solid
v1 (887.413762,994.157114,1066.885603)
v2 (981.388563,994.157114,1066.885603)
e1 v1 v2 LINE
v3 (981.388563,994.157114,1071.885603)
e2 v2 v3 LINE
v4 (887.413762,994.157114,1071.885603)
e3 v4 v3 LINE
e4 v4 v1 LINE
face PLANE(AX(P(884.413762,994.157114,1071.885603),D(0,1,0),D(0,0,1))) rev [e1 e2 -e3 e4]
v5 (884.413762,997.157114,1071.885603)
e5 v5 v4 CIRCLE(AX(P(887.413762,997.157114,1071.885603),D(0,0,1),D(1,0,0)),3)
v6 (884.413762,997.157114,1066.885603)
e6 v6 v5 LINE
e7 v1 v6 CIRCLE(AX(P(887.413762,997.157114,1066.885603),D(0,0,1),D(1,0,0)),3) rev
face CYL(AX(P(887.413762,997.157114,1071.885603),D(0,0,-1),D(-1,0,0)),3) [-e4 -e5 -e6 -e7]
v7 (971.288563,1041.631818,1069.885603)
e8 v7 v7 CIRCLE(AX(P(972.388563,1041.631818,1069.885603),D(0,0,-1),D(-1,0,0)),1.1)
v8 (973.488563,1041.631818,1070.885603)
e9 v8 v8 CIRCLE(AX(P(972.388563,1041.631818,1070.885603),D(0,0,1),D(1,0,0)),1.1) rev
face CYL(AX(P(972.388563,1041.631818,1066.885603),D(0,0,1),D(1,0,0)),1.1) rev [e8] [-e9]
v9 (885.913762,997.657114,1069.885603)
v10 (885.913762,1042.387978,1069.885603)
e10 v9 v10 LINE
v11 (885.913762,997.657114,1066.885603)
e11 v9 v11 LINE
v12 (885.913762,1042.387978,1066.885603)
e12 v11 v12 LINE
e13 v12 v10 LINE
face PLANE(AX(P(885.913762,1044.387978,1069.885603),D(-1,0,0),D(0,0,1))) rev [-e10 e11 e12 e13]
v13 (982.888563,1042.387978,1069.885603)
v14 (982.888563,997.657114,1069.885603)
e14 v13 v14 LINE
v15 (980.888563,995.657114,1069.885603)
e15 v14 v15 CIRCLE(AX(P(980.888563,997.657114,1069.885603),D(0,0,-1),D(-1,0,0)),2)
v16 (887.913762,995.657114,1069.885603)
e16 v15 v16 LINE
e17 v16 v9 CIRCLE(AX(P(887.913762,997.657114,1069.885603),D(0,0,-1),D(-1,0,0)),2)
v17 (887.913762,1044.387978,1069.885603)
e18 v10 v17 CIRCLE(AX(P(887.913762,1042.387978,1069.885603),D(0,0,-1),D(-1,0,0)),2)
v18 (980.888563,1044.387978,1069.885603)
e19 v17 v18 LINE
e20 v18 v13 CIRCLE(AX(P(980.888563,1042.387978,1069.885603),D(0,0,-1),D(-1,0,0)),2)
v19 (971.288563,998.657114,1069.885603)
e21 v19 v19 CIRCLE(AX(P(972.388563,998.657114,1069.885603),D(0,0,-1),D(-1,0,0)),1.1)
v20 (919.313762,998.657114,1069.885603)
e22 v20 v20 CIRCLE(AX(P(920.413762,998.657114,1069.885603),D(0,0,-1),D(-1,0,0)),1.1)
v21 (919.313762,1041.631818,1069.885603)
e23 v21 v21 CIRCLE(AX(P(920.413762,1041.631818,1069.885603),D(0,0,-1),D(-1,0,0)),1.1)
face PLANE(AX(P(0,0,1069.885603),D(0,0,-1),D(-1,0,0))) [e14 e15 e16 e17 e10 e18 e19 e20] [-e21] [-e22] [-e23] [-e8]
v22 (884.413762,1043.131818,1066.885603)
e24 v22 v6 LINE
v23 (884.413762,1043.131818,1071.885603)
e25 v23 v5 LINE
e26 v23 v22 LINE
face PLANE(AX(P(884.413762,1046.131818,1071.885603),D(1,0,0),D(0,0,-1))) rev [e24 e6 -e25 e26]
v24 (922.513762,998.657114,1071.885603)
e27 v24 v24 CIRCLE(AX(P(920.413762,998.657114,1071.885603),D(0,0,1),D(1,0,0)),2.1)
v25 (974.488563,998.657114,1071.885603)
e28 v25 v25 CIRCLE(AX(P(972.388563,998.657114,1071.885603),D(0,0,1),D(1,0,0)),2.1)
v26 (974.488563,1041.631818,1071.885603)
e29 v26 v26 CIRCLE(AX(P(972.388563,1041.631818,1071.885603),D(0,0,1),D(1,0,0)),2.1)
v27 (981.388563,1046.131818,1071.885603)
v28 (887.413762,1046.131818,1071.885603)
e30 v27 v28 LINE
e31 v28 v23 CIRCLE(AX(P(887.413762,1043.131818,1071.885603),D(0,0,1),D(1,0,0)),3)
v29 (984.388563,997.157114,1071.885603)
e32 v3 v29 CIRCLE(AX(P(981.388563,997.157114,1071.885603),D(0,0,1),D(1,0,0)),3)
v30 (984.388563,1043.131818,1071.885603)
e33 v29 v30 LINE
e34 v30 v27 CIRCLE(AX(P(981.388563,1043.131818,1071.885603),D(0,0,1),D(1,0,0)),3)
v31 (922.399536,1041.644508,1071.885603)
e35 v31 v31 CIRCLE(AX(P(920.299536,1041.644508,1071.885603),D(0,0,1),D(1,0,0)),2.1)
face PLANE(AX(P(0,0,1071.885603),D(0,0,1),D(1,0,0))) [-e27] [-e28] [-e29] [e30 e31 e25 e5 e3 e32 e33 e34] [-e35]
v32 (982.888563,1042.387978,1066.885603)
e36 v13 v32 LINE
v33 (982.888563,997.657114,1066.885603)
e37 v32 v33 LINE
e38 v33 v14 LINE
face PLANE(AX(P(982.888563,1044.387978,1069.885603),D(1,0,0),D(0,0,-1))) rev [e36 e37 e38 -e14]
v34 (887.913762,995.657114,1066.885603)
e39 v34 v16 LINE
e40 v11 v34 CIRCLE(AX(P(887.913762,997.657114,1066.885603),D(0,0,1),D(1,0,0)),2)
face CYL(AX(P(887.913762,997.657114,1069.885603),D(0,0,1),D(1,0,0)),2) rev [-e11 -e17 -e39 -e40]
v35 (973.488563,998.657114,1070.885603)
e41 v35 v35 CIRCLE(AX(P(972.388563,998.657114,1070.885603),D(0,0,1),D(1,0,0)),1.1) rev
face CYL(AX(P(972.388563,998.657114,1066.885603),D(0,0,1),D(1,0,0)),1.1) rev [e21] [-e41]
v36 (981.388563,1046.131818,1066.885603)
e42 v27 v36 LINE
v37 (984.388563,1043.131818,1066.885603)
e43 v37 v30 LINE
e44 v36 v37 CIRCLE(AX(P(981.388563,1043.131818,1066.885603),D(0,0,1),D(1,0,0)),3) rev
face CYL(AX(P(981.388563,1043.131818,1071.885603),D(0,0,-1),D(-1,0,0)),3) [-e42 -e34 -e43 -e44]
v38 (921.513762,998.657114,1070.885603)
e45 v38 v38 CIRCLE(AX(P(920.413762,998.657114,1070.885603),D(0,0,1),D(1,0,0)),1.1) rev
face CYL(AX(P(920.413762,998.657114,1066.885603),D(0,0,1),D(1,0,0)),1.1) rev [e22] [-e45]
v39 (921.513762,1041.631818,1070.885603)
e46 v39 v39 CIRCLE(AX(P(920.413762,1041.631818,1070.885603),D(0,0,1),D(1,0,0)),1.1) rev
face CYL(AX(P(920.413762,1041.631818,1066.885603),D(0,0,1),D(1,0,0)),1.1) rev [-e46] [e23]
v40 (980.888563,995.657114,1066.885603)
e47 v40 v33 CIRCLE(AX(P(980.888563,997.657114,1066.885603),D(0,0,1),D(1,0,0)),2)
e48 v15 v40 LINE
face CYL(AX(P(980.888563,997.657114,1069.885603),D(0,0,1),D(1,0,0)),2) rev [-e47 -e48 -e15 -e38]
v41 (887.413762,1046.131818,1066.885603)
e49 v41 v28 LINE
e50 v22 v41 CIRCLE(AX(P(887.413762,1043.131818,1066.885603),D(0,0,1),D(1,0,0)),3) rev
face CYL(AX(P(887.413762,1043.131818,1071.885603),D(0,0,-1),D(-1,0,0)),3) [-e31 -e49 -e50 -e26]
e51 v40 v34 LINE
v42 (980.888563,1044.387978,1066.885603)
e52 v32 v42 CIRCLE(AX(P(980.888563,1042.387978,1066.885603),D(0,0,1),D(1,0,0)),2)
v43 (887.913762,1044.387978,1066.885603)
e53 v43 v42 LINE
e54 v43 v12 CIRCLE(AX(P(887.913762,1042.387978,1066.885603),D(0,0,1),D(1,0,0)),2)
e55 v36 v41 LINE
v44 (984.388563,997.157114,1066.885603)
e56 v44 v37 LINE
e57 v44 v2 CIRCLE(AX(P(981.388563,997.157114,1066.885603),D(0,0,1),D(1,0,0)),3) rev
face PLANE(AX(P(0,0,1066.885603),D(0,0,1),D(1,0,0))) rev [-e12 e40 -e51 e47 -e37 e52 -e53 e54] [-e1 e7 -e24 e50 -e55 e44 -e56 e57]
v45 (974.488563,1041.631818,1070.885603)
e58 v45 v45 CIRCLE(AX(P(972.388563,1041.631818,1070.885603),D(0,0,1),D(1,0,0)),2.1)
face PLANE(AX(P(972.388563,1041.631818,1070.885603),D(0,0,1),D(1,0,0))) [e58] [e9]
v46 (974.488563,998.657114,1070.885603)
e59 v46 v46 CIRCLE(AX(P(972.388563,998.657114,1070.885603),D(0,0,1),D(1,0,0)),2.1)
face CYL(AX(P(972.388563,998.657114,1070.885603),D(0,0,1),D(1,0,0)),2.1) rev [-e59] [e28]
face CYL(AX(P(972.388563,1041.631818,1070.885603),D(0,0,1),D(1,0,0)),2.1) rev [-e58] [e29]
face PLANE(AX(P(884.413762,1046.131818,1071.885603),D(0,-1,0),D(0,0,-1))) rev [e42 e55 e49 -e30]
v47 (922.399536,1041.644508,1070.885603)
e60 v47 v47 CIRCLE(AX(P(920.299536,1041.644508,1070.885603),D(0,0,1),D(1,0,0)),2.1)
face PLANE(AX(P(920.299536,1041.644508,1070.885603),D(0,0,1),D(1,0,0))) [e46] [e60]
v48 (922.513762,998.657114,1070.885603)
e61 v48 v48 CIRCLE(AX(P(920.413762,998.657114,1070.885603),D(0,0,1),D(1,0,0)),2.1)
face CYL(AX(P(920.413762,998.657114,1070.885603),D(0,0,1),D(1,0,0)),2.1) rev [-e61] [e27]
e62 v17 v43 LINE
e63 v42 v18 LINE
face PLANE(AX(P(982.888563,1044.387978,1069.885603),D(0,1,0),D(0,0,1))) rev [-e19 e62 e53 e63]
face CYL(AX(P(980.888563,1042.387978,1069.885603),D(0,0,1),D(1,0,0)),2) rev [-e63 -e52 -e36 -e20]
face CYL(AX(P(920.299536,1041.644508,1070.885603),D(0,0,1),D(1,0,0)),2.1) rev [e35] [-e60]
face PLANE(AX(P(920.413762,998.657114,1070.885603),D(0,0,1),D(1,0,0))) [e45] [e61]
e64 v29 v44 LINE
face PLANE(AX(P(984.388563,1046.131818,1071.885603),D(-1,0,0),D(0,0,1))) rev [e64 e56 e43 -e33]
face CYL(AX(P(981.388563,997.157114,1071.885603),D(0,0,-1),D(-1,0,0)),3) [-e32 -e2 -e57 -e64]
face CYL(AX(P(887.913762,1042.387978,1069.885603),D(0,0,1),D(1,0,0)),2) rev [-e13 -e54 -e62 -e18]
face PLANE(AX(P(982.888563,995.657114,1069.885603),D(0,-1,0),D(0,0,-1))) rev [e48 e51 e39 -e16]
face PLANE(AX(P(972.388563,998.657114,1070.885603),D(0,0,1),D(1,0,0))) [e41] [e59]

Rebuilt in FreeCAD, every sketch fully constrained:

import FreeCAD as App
import Part
import Sketcher
Q = App.Units.Quantity


def edges_at(feature, points):
    """Names of the edges that pass closest to the given points."""
    edges = feature.Shape.Edges
    near = lambda p: min(range(len(edges)), key=lambda i: edges[i].distToShape(Part.Vertex(*p))[0])
    return sorted({f"Edge{near(p) + 1}" for p in points})


def add_polygon(sketch, points):
    """Adds a closed chain of lines whose ends are joined by coincident constraints."""
    first, n = sketch.GeometryCount, len(points)
    for a, b in zip(points, points[1:] + points[:1]):
        sketch.addGeometry(Part.LineSegment(App.Vector(*a, 0), App.Vector(*b, 0)), False)
    for i in range(n):
        sketch.addConstraint(Sketcher.Constraint("Coincident", first + i, 2, first + (i + 1) % n, 1))

doc = App.newDocument("Part")
body = doc.addObject("PartDesign::Body", "Body")

# Sketch on XY plane
sketch1 = doc.addObject("Sketcher::SketchObject", "Sketch")
body.addObject(sketch1)
sketch1.AttachmentSupport = (doc.XY_Plane, [""])
sketch1.MapMode = "FlatFace"
sketch1.AttachmentOffset = App.Placement(App.Vector(0, 0, 1066.885603), App.Rotation())
add_polygon(sketch1, [(884, 1046), (884, 994), (984, 994), (984, 1046)])  # lines 0-3
sketch1.addConstraint([
    Sketcher.Constraint("Vertical", 0),
    Sketcher.Constraint("Horizontal", 1),
    Sketcher.Constraint("Vertical", 2),
    Sketcher.Constraint("Horizontal", 3),
    Sketcher.Constraint("DistanceX", 1, 1, 1, 2, Q("99.974801 mm")),
    Sketcher.Constraint("DistanceY", 0, 2, 0, 1, Q("51.974704 mm")),
    Sketcher.Constraint("DistanceY", -1, 1, 2, 2, Q("1046.131818 mm")),
    Sketcher.Constraint("DistanceX", -1, 1, 0, 2, Q("884.413762 mm")),
])
pad1 = doc.addObject("PartDesign::Pad", "Pad")
body.addObject(pad1)
pad1.Profile = sketch1
pad1.Length = 5

# Sketch on XY plane
sketch2 = doc.addObject("Sketcher::SketchObject", "Sketch001")
body.addObject(sketch2)
sketch2.AttachmentSupport = (doc.XY_Plane, [""])
sketch2.MapMode = "FlatFace"
sketch2.AttachmentOffset = App.Placement(App.Vector(0, 0, 1066.885603), App.Rotation())
add_polygon(sketch2, [(983, 1044), (983, 996), (886, 996), (886, 1044)])  # lines 0-3
sketch2.addConstraint([
    Sketcher.Constraint("Vertical", 0),
    Sketcher.Constraint("Horizontal", 1),
    Sketcher.Constraint("Vertical", 2),
    Sketcher.Constraint("Horizontal", 3),
    Sketcher.Constraint("DistanceX", 1, 2, 1, 1, Q("96.974801 mm")),
    Sketcher.Constraint("DistanceY", 0, 2, 0, 1, Q("48.730864 mm")),
    Sketcher.Constraint("DistanceX", -1, 1, 0, 2, Q("982.888563 mm")),
    Sketcher.Constraint("DistanceY", -1, 1, 0, 2, Q("995.657114 mm")),
])
pocket1 = doc.addObject("PartDesign::Pocket", "Pocket")
body.addObject(pocket1)
pocket1.Profile = sketch2
pocket1.Length = 3
pocket1.Reversed = True

# Sketch on XY plane
sketch3 = doc.addObject("Sketcher::SketchObject", "Sketch002")
body.addObject(sketch3)
sketch3.AttachmentSupport = (doc.XY_Plane, [""])
sketch3.MapMode = "FlatFace"
sketch3.AttachmentOffset = App.Placement(App.Vector(0, 0, 1071.885603), App.Rotation())
sketch3.addGeometry([
    Part.Circle(App.Vector(972.4, 1041.6, 0), App.Vector(0, 0, 1), 1.1),
    Part.Circle(App.Vector(972.4, 998.7, 0), App.Vector(0, 0, 1), 1.1),
    Part.Circle(App.Vector(920.4, 998.7, 0), App.Vector(0, 0, 1), 1.1),
    Part.Circle(App.Vector(920.4, 1041.6, 0), App.Vector(0, 0, 1), 1.1),
], False)
sketch3.addConstraint([
    Sketcher.Constraint("Equal", 0, 1),
    Sketcher.Constraint("Equal", 1, 2),
    Sketcher.Constraint("Equal", 2, 3),
    Sketcher.Constraint("Horizontal", 1, 3, 2, 3),
    Sketcher.Constraint("Horizontal", 0, 3, 3, 3),
    Sketcher.Constraint("Vertical", 0, 3, 1, 3),
    Sketcher.Constraint("Vertical", 2, 3, 3, 3),
    Sketcher.Constraint("Diameter", 0, Q("2.2 mm")),
    Sketcher.Constraint("DistanceX", 2, 3, 1, 3, Q("51.974801 mm")),
    Sketcher.Constraint("DistanceY", -1, 1, 0, 3, Q("1041.631818 mm")),
    Sketcher.Constraint("DistanceX", -1, 1, 0, 3, Q("972.388563 mm")),
    Sketcher.Constraint("DistanceY", -1, 1, 1, 3, Q("998.657114 mm")),
])
pocket2 = doc.addObject("PartDesign::Pocket", "Pocket001")
body.addObject(pocket2)
pocket2.Profile = sketch3
pocket2.Type = "ThroughAll"
doc.recompute()

fillet = doc.addObject("PartDesign::Fillet", "Fillet")
body.addObject(fillet)
fillet.Base = (pocket2, edges_at(pocket2, [
    (884.414, 1046.132, 1069.386),
    (984.389, 1046.132, 1069.386),
    (984.389, 994.157, 1069.386),
    (884.414, 994.157, 1069.386),
]))
fillet.Radius = 3
doc.recompute()

fillet2 = doc.addObject("PartDesign::Fillet", "Fillet001")
body.addObject(fillet2)
fillet2.Base = (fillet, edges_at(fillet, [
    (982.889, 995.657, 1068.386),
    (982.889, 1044.388, 1068.386),
    (885.914, 1044.388, 1068.386),
    (885.914, 995.657, 1068.386),
]))
fillet2.Radius = 2

# Sketch on XY plane
sketch4 = doc.addObject("Sketcher::SketchObject", "Sketch003")
body.addObject(sketch4)
sketch4.AttachmentSupport = (doc.XY_Plane, [""])
sketch4.MapMode = "FlatFace"
sketch4.AttachmentOffset = App.Placement(App.Vector(0, 0, 1071.885603), App.Rotation())
sketch4.addGeometry([
    Part.Circle(App.Vector(920.3, 1041.6, 0), App.Vector(0, 0, 1), 2.1),
    Part.Circle(App.Vector(972.4, 1041.6, 0), App.Vector(0, 0, 1), 2.1),
    Part.Circle(App.Vector(972.4, 998.7, 0), App.Vector(0, 0, 1), 2.1),
    Part.Circle(App.Vector(920.4, 998.7, 0), App.Vector(0, 0, 1), 2.1),
], False)
sketch4.addConstraint([
    Sketcher.Constraint("Equal", 0, 1),
    Sketcher.Constraint("Equal", 1, 2),
    Sketcher.Constraint("Equal", 2, 3),
    Sketcher.Constraint("Horizontal", 2, 3, 3, 3),
    Sketcher.Constraint("Vertical", 1, 3, 2, 3),
    Sketcher.Constraint("Diameter", 0, Q("4.2 mm")),
    Sketcher.Constraint("DistanceX", 3, 3, 2, 3, Q("51.974801 mm")),
    Sketcher.Constraint("DistanceY", -1, 1, 0, 3, Q("1041.644508 mm")),
    Sketcher.Constraint("DistanceY", -1, 1, 1, 3, Q("1041.631818 mm")),
    Sketcher.Constraint("DistanceX", -1, 1, 0, 3, Q("920.299536 mm")),
    Sketcher.Constraint("DistanceX", -1, 1, 1, 3, Q("972.388563 mm")),
    Sketcher.Constraint("DistanceY", -1, 1, 2, 3, Q("998.657114 mm")),
])
pocket3 = doc.addObject("PartDesign::Pocket", "Pocket002")
body.addObject(pocket3)
pocket3.Profile = sketch4
pocket3.Length = 1

doc.recompute()
